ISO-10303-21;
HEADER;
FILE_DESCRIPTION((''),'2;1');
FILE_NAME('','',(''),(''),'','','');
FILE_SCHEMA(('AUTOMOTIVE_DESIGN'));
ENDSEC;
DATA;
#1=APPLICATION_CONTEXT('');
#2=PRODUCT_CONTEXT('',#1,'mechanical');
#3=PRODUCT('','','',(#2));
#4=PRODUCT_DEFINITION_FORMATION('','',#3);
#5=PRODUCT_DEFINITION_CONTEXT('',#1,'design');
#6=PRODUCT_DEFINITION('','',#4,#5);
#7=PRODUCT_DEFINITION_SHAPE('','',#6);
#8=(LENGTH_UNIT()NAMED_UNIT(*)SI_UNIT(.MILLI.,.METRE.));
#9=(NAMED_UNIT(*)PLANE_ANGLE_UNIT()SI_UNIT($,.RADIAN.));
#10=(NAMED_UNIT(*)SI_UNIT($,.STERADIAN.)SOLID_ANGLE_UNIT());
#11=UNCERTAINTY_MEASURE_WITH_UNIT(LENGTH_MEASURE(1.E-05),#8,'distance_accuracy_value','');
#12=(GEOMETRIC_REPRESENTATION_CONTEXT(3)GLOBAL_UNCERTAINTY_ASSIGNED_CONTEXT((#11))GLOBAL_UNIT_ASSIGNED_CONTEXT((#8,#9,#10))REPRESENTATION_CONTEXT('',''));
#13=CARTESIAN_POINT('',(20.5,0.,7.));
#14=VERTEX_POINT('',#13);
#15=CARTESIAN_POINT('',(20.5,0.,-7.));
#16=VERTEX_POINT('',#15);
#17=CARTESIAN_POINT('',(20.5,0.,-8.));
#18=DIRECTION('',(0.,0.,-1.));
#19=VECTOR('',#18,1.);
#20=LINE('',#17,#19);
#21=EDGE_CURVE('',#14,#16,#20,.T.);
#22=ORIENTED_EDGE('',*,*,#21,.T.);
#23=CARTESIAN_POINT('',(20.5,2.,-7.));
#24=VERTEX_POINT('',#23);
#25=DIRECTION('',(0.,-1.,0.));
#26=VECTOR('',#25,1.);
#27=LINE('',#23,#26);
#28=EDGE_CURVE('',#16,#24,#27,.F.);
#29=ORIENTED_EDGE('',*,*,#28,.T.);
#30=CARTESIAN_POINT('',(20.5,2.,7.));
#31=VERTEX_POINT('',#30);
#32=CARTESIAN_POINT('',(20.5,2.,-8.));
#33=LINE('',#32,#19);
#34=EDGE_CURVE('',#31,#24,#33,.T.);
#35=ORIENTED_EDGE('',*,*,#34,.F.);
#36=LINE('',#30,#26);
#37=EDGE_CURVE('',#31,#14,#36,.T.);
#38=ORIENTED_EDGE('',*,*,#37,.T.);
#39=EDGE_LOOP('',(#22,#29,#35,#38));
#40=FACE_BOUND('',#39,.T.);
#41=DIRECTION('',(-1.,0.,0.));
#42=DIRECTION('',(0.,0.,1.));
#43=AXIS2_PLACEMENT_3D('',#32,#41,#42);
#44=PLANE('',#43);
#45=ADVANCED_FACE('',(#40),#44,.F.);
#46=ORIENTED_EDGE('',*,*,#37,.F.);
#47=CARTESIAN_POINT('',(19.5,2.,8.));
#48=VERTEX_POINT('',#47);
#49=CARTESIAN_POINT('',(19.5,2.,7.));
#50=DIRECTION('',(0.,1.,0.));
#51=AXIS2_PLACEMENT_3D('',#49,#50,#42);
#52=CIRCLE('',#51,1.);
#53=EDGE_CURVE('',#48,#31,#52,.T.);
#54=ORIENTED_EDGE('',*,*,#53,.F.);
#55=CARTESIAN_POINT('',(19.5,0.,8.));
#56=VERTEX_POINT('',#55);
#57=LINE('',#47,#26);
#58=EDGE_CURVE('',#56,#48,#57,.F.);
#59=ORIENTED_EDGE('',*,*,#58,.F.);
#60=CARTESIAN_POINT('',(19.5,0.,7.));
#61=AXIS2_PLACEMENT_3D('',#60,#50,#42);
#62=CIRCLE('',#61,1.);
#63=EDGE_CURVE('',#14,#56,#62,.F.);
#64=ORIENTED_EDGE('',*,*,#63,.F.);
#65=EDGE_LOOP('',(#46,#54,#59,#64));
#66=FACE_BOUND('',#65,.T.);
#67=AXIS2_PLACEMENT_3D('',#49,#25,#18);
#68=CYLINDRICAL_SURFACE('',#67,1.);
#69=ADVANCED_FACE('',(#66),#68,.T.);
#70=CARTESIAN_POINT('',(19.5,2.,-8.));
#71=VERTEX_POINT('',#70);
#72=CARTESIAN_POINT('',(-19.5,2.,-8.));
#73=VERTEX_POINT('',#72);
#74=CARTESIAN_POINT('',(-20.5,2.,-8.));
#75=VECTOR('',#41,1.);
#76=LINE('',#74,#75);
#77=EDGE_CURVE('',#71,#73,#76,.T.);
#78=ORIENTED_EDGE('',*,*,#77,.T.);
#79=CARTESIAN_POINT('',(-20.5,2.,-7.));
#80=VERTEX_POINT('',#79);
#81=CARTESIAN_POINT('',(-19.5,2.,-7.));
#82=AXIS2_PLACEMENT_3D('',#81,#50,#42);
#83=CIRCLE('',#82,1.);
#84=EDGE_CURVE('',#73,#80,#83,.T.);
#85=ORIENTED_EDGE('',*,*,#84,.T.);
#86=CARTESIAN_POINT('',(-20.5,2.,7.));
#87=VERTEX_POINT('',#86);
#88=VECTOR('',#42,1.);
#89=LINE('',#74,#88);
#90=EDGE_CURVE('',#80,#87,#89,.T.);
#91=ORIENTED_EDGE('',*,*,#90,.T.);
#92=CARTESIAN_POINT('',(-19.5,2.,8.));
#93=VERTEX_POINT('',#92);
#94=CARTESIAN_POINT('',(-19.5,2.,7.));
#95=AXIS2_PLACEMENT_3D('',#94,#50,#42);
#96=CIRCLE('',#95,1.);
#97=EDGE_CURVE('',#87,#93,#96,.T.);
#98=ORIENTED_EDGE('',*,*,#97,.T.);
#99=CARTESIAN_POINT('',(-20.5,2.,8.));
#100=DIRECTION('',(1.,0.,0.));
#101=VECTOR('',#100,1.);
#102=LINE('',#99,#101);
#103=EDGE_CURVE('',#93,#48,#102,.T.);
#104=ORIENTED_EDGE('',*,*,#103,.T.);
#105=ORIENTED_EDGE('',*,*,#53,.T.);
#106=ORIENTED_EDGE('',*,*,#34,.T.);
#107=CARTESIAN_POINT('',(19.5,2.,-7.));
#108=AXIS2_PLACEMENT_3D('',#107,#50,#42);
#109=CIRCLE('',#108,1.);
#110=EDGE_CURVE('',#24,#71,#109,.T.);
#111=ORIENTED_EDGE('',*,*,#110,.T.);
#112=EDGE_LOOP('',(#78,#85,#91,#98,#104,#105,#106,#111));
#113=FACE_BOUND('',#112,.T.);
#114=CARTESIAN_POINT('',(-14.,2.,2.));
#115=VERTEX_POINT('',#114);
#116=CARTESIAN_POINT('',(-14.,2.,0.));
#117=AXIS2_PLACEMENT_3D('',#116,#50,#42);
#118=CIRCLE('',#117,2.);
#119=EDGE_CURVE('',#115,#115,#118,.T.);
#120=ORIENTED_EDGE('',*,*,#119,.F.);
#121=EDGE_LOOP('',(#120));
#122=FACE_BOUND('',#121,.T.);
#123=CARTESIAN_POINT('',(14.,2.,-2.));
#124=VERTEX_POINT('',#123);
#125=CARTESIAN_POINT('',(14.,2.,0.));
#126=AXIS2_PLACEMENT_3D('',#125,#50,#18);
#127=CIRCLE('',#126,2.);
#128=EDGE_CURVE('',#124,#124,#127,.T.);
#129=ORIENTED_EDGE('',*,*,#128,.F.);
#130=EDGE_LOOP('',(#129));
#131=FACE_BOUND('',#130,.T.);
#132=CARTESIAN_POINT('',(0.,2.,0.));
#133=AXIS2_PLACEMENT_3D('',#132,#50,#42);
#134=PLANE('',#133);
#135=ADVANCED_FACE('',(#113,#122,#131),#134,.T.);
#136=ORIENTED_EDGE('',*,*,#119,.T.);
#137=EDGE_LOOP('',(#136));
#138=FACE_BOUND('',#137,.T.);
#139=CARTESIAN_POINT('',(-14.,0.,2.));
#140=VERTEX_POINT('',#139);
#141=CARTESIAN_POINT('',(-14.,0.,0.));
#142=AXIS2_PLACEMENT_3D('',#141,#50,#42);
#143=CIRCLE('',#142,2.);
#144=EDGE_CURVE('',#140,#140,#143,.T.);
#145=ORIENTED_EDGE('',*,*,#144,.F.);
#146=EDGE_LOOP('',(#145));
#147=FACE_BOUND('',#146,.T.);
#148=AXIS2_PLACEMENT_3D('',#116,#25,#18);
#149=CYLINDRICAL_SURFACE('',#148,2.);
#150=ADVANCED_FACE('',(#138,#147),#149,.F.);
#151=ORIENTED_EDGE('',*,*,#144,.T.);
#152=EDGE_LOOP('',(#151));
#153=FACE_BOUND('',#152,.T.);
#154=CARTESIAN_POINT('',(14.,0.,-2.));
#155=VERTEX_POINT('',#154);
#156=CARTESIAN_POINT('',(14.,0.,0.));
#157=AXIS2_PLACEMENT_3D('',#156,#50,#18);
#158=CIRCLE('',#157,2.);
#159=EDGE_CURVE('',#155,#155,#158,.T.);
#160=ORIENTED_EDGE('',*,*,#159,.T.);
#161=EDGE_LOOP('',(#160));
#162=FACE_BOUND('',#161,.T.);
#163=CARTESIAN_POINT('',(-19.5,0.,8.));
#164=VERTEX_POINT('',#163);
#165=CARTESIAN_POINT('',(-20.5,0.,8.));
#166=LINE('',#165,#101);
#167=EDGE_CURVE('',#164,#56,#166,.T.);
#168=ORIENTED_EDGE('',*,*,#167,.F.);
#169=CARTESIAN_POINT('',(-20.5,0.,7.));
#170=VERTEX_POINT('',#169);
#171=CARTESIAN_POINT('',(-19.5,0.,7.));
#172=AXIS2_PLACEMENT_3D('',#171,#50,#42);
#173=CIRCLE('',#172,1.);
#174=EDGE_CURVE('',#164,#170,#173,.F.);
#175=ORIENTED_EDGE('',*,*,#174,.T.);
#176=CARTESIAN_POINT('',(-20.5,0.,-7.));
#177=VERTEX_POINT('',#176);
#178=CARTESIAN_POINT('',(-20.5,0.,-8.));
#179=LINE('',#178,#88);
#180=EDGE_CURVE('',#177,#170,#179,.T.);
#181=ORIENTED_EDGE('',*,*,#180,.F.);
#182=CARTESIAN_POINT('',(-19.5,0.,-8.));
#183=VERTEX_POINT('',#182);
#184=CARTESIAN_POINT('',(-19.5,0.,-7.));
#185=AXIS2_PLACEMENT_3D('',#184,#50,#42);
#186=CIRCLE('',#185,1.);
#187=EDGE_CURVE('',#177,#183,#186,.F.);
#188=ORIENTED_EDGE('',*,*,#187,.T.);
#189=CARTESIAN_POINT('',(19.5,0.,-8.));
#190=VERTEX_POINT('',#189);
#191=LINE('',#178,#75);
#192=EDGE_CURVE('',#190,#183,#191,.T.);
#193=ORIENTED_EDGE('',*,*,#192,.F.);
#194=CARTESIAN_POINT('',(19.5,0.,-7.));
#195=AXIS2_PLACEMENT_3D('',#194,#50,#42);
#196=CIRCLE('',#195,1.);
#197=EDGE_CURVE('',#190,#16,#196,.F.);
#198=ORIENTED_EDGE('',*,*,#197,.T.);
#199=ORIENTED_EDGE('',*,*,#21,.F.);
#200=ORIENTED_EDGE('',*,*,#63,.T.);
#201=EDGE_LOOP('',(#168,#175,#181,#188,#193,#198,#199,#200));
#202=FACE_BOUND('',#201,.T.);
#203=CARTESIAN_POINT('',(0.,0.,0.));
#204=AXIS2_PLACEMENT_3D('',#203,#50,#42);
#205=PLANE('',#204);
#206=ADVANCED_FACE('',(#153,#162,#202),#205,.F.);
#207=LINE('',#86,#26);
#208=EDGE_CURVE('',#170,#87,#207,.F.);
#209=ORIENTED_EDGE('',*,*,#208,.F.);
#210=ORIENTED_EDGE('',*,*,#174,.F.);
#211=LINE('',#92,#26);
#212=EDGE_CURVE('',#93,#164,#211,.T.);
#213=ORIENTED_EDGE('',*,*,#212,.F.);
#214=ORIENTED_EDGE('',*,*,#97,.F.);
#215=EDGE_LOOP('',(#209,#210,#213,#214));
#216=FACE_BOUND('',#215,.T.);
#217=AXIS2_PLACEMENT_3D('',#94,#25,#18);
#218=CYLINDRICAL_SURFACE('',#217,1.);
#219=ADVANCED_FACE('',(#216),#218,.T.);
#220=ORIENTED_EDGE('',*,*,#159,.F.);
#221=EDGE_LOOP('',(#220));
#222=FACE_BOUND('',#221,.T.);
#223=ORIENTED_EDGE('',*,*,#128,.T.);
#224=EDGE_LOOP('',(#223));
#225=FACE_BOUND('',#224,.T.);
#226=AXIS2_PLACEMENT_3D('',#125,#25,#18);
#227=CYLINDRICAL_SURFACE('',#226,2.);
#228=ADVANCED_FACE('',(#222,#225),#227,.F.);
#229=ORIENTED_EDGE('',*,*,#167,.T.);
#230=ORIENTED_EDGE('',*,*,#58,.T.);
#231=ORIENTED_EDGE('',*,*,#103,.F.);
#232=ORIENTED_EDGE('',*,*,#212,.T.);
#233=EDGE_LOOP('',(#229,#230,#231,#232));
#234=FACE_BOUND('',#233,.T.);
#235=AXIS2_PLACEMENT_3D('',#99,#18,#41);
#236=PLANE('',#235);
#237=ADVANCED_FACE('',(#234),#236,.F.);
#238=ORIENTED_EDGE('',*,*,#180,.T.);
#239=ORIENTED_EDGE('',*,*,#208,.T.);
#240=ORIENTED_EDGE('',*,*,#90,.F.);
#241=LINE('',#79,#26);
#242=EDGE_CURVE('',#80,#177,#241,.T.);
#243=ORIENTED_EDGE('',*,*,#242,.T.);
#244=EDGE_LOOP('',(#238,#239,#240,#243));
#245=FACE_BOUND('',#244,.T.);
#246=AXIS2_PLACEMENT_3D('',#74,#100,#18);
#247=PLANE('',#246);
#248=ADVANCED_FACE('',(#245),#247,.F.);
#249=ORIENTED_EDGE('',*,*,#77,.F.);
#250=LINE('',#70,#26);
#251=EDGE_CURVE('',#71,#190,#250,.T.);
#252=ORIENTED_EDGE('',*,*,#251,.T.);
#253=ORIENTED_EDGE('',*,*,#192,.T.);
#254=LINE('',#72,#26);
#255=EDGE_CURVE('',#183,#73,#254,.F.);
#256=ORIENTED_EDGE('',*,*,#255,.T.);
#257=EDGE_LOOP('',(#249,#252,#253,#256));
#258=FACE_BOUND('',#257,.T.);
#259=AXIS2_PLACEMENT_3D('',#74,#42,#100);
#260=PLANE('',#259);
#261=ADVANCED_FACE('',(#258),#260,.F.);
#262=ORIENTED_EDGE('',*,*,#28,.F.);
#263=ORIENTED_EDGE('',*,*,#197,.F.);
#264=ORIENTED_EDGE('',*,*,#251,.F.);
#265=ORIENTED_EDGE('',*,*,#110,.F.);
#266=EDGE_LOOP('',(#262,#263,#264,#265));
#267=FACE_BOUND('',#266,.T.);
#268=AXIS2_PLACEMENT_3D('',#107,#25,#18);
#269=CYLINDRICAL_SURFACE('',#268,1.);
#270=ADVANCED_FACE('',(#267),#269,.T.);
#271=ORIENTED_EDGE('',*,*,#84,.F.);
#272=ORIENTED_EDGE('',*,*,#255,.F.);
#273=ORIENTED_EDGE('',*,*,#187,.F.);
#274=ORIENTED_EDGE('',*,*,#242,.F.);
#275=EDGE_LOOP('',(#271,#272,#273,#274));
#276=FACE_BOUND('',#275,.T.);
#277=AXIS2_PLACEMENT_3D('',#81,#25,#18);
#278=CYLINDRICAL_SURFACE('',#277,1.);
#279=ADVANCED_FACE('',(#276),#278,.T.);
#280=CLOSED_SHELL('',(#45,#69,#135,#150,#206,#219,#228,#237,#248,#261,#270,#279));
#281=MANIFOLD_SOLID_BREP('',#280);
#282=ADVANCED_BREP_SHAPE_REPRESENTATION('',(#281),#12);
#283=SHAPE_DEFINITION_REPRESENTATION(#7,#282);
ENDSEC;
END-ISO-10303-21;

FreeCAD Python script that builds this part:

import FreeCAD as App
import Part
import Sketcher


def edges_at(feature, points):
    """Names of the edges that pass closest to the given points."""
    edges = feature.Shape.Edges
    near = lambda p: min(range(len(edges)), key=lambda i: edges[i].distToShape(Part.Vertex(*p))[0])
    return sorted({f"Edge{near(p) + 1}" for p in points})

doc = App.newDocument("Part")
body = doc.addObject("PartDesign::Body", "Body")

sketch1 = doc.addObject("Sketcher::SketchObject", "Sketch")
body.addObject(sketch1)
sketch1.AttachmentSupport = (doc.XZ_Plane, [""])
sketch1.MapMode = "FlatFace"
sketch1.addGeometry([
    Part.LineSegment(App.Vector(-20.5, -8, 0), App.Vector(-20.5, 8, 0)),
    Part.LineSegment(App.Vector(-20.5, 8, 0), App.Vector(20.5, 8, 0)),
    Part.LineSegment(App.Vector(20.5, 8, 0), App.Vector(20.5, -8, 0)),
    Part.LineSegment(App.Vector(20.5, -8, 0), App.Vector(-20.5, -8, 0)),
    Part.Circle(App.Vector(-14, 0, 0), App.Vector(0, 0, 1), 2),
    Part.Circle(App.Vector(14, 0, 0), App.Vector(0, 0, 1), 2),
], False)
sketch1.addConstraint([
    Sketcher.Constraint("Coincident", 0, 2, 1, 1),
    Sketcher.Constraint("Coincident", 1, 2, 2, 1),
    Sketcher.Constraint("Coincident", 2, 2, 3, 1),
    Sketcher.Constraint("Coincident", 3, 2, 0, 1),
    Sketcher.Constraint("Vertical", 0),
    Sketcher.Constraint("Horizontal", 1),
    Sketcher.Constraint("Vertical", 2),
    Sketcher.Constraint("Horizontal", 3),
    Sketcher.Constraint("Equal", 4, 5),
    Sketcher.Constraint("Symmetric", 4, 3, 5, 3, -1, 1),
    Sketcher.Constraint("Symmetric", 0, 2, 2, 2, -1, 1),
    Sketcher.Constraint("PointOnObject", 4, 3, -1),
    Sketcher.Constraint("Diameter", 4, 4.0),
    Sketcher.Constraint("DistanceX", 1, 1, 1, 2, 41.0),
    Sketcher.Constraint("DistanceY", 0, 1, 0, 2, 16.0),
    Sketcher.Constraint("DistanceX", 4, 3, -1, 1, 14.0),
])
pad1 = doc.addObject("PartDesign::Pad", "Pad")
body.addObject(pad1)
pad1.Profile = sketch1
pad1.Length = 2
pad1.Reversed = True
doc.recompute()

fillet = doc.addObject("PartDesign::Fillet", "Fillet")
body.addObject(fillet)
fillet.Base = (pad1, edges_at(pad1, [(20.5, 1, 8)]))
fillet.Radius = 1
doc.recompute()

fillet2 = doc.addObject("PartDesign::Fillet", "Fillet001")
body.addObject(fillet2)
fillet2.Base = (fillet, edges_at(fillet, [(-20.5, 1, 8)]))
fillet2.Radius = 1
doc.recompute()

fillet3 = doc.addObject("PartDesign::Fillet", "Fillet002")
body.addObject(fillet3)
fillet3.Base = (fillet2, edges_at(fillet2, [(-20.5, 1, -8)]))
fillet3.Radius = 1
doc.recompute()

fillet4 = doc.addObject("PartDesign::Fillet", "Fillet003")
body.addObject(fillet4)
fillet4.Base = (fillet3, edges_at(fillet3, [(20.5, 1, -8)]))
fillet4.Radius = 1

doc.recompute()
